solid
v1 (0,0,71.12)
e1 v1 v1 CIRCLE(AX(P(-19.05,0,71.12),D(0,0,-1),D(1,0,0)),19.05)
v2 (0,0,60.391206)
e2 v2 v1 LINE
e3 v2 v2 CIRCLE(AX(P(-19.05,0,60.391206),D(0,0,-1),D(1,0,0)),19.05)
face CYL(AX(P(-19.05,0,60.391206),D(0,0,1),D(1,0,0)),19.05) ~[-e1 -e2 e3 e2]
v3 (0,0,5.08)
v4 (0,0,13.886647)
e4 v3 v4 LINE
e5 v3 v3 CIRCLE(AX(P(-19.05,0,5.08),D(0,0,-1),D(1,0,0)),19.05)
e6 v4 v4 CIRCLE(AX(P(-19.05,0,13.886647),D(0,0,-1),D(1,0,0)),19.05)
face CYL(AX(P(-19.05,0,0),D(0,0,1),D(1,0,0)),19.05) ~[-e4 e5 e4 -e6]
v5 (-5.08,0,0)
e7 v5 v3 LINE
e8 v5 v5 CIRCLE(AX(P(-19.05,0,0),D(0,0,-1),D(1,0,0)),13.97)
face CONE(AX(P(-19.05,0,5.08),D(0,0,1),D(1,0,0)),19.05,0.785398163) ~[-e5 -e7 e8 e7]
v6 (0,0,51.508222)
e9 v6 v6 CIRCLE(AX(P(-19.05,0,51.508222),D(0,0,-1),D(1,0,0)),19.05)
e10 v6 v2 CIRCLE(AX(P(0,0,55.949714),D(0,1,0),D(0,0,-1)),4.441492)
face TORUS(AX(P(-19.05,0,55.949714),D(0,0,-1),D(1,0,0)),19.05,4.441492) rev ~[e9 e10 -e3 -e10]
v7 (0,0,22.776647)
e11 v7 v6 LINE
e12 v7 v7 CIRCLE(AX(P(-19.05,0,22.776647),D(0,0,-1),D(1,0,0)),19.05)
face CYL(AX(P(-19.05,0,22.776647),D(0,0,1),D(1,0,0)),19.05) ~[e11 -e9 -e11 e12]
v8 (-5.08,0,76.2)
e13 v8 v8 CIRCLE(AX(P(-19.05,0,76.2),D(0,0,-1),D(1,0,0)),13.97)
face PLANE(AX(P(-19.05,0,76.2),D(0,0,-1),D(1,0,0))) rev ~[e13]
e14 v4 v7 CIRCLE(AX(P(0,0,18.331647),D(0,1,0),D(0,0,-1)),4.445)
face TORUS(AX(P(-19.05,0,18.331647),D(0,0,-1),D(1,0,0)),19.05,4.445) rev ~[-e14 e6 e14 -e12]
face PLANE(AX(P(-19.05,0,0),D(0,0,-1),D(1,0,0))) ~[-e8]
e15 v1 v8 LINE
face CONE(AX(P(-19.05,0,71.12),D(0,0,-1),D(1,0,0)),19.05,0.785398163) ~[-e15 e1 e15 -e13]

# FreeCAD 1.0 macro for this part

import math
import FreeCAD as App
import Part
import Sketcher

V = App.Vector
Q = App.Units.Quantity


def edges_at(feature, points):
    """Names of the edges that pass closest to the given points."""
    edges = feature.Shape.Edges
    near = lambda p: min(range(len(edges)), key=lambda i: edges[i].distToShape(Part.Vertex(*p))[0])
    return sorted({f"Edge{near(p) + 1}" for p in points})

doc = App.newDocument("Part")
body = doc.addObject("PartDesign::Body", "Body")

sketch1 = doc.addObject("Sketcher::SketchObject", "Sketch")
body.addObject(sketch1)
sketch1.AttachmentSupport = (doc.XZ_Plane, [""])
sketch1.MapMode = "FlatFace"
sketch1.addGeometry([
    Part.LineSegment(V(-19.1, 0, 0), V(0, 0, 0)),
    Part.LineSegment(V(0, 0, 0), V(0, 13.9, 0)),
    Part.ArcOfCircle(Part.Circle(V(0, 18.3, 0), V(0, 0, 1), 4.4), math.radians(90), math.radians(270)),
    Part.LineSegment(V(0, 22.8, 0), V(0, 51.5, 0)),
    Part.ArcOfCircle(Part.Circle(V(0, 55.9, 0), V(0, 0, 1), 4.4), math.radians(90), math.radians(270)),
    Part.LineSegment(V(0, 60.4, 0), V(0, 76.2, 0)),
    Part.LineSegment(V(0, 76.2, 0), V(-19.1, 76.2, 0)),
    Part.LineSegment(V(-19.1, 76.2, 0), V(-19.1, 0, 0)),
], False)
sketch1.addGeometry(Part.LineSegment(V(-19.1, 76.2, 0), V(-19.1, 0, 0)), True)
sketch1.addConstraint([
    Sketcher.Constraint("Coincident", 0, 2, 1, 1),
    Sketcher.Constraint("Coincident", 1, 2, 2, 2),
    Sketcher.Constraint("Coincident", 2, 1, 3, 1),
    Sketcher.Constraint("Coincident", 3, 2, 4, 2),
    Sketcher.Constraint("Coincident", 4, 1, 5, 1),
    Sketcher.Constraint("Coincident", 5, 2, 6, 1),
    Sketcher.Constraint("Coincident", 6, 2, 7, 1),
    Sketcher.Constraint("Coincident", 7, 2, 0, 1),
    Sketcher.Constraint("Horizontal", 0),
    Sketcher.Constraint("Vertical", 1),
    Sketcher.Constraint("Vertical", 3),
    Sketcher.Constraint("Vertical", 5),
    Sketcher.Constraint("Horizontal", 6),
    Sketcher.Constraint("Vertical", 7),
    Sketcher.Constraint("Vertical", 8),
    Sketcher.Constraint("Coincident", 0, 2, -1, 1),
    Sketcher.Constraint("Coincident", 8, 1, 6, 2),
    Sketcher.Constraint("PointOnObject", 2, 3, -2),
    Sketcher.Constraint("PointOnObject", 4, 3, -2),
    Sketcher.Constraint("PointOnObject", 2, 1, -2),
    Sketcher.Constraint("PointOnObject", 4, 1, -2),
    Sketcher.Constraint("PointOnObject", 8, 2, -1),
    Sketcher.Constraint("DistanceY", 7, 2, 7, 1, Q("3 in")),
    Sketcher.Constraint("Radius", 2, Q("0.175 in")),
    Sketcher.Constraint("DistanceX", 0, 1, 0, 2, Q("0.75 in")),
    Sketcher.Constraint("Radius", 4, Q("4.441492 mm")),
    Sketcher.Constraint("DistanceY", 1, 1, 1, 2, Q("13.886647 mm")),
    Sketcher.Constraint("DistanceY", 3, 1, 3, 2, Q("28.731575 mm")),
])
revolution = doc.addObject("PartDesign::Revolution", "Revolution")
body.addObject(revolution)
revolution.Profile = sketch1
revolution.ReferenceAxis = (sketch1, ["Axis0"])
revolution.Angle = 360
doc.recompute()

chamfer = doc.addObject("PartDesign::Chamfer", "Chamfer")
body.addObject(chamfer)
chamfer.Base = (revolution, edges_at(revolution, [(-38.1, 0, 76.2), (-38.1, 0, 0)]))
chamfer.Size = Q("0.2 in")

doc.recompute()
